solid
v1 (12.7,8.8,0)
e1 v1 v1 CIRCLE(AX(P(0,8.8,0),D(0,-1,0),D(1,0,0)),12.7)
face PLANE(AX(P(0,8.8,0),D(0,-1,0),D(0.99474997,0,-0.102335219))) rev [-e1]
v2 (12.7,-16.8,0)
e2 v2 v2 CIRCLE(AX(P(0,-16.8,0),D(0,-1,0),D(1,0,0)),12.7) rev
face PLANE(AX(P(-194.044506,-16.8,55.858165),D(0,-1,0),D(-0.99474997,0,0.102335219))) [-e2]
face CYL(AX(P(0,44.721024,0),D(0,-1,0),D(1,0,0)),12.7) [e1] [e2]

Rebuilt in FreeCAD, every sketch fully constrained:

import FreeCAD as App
import Part
import Sketcher
Q = App.Units.Quantity

doc = App.newDocument("Part")
body = doc.addObject("PartDesign::Body", "Body")

sketch1 = body.newObject("Sketcher::SketchObject", "Sketch")
sketch1.AttachmentSupport = (doc.getObject("XZ_Plane"), [""])
sketch1.MapMode = "FlatFace"
sketch1.addGeometry(Part.Circle(App.Vector(0, 0, 0), App.Vector(0, 0, 1), 13), False)
sketch1.addConstraint([
    Sketcher.Constraint("Coincident", 0, 3, -1, 1),
    Sketcher.Constraint("Diameter", 0, Q("25.4 mm")),
])
pad1 = body.newObject("PartDesign::Pad", "Pad")
pad1.Profile = sketch1
pad1.Type = "TwoLengths"
pad1.Length = 8.8
pad1.Length2 = 16.8
pad1.Reversed = True

doc.recompute()
